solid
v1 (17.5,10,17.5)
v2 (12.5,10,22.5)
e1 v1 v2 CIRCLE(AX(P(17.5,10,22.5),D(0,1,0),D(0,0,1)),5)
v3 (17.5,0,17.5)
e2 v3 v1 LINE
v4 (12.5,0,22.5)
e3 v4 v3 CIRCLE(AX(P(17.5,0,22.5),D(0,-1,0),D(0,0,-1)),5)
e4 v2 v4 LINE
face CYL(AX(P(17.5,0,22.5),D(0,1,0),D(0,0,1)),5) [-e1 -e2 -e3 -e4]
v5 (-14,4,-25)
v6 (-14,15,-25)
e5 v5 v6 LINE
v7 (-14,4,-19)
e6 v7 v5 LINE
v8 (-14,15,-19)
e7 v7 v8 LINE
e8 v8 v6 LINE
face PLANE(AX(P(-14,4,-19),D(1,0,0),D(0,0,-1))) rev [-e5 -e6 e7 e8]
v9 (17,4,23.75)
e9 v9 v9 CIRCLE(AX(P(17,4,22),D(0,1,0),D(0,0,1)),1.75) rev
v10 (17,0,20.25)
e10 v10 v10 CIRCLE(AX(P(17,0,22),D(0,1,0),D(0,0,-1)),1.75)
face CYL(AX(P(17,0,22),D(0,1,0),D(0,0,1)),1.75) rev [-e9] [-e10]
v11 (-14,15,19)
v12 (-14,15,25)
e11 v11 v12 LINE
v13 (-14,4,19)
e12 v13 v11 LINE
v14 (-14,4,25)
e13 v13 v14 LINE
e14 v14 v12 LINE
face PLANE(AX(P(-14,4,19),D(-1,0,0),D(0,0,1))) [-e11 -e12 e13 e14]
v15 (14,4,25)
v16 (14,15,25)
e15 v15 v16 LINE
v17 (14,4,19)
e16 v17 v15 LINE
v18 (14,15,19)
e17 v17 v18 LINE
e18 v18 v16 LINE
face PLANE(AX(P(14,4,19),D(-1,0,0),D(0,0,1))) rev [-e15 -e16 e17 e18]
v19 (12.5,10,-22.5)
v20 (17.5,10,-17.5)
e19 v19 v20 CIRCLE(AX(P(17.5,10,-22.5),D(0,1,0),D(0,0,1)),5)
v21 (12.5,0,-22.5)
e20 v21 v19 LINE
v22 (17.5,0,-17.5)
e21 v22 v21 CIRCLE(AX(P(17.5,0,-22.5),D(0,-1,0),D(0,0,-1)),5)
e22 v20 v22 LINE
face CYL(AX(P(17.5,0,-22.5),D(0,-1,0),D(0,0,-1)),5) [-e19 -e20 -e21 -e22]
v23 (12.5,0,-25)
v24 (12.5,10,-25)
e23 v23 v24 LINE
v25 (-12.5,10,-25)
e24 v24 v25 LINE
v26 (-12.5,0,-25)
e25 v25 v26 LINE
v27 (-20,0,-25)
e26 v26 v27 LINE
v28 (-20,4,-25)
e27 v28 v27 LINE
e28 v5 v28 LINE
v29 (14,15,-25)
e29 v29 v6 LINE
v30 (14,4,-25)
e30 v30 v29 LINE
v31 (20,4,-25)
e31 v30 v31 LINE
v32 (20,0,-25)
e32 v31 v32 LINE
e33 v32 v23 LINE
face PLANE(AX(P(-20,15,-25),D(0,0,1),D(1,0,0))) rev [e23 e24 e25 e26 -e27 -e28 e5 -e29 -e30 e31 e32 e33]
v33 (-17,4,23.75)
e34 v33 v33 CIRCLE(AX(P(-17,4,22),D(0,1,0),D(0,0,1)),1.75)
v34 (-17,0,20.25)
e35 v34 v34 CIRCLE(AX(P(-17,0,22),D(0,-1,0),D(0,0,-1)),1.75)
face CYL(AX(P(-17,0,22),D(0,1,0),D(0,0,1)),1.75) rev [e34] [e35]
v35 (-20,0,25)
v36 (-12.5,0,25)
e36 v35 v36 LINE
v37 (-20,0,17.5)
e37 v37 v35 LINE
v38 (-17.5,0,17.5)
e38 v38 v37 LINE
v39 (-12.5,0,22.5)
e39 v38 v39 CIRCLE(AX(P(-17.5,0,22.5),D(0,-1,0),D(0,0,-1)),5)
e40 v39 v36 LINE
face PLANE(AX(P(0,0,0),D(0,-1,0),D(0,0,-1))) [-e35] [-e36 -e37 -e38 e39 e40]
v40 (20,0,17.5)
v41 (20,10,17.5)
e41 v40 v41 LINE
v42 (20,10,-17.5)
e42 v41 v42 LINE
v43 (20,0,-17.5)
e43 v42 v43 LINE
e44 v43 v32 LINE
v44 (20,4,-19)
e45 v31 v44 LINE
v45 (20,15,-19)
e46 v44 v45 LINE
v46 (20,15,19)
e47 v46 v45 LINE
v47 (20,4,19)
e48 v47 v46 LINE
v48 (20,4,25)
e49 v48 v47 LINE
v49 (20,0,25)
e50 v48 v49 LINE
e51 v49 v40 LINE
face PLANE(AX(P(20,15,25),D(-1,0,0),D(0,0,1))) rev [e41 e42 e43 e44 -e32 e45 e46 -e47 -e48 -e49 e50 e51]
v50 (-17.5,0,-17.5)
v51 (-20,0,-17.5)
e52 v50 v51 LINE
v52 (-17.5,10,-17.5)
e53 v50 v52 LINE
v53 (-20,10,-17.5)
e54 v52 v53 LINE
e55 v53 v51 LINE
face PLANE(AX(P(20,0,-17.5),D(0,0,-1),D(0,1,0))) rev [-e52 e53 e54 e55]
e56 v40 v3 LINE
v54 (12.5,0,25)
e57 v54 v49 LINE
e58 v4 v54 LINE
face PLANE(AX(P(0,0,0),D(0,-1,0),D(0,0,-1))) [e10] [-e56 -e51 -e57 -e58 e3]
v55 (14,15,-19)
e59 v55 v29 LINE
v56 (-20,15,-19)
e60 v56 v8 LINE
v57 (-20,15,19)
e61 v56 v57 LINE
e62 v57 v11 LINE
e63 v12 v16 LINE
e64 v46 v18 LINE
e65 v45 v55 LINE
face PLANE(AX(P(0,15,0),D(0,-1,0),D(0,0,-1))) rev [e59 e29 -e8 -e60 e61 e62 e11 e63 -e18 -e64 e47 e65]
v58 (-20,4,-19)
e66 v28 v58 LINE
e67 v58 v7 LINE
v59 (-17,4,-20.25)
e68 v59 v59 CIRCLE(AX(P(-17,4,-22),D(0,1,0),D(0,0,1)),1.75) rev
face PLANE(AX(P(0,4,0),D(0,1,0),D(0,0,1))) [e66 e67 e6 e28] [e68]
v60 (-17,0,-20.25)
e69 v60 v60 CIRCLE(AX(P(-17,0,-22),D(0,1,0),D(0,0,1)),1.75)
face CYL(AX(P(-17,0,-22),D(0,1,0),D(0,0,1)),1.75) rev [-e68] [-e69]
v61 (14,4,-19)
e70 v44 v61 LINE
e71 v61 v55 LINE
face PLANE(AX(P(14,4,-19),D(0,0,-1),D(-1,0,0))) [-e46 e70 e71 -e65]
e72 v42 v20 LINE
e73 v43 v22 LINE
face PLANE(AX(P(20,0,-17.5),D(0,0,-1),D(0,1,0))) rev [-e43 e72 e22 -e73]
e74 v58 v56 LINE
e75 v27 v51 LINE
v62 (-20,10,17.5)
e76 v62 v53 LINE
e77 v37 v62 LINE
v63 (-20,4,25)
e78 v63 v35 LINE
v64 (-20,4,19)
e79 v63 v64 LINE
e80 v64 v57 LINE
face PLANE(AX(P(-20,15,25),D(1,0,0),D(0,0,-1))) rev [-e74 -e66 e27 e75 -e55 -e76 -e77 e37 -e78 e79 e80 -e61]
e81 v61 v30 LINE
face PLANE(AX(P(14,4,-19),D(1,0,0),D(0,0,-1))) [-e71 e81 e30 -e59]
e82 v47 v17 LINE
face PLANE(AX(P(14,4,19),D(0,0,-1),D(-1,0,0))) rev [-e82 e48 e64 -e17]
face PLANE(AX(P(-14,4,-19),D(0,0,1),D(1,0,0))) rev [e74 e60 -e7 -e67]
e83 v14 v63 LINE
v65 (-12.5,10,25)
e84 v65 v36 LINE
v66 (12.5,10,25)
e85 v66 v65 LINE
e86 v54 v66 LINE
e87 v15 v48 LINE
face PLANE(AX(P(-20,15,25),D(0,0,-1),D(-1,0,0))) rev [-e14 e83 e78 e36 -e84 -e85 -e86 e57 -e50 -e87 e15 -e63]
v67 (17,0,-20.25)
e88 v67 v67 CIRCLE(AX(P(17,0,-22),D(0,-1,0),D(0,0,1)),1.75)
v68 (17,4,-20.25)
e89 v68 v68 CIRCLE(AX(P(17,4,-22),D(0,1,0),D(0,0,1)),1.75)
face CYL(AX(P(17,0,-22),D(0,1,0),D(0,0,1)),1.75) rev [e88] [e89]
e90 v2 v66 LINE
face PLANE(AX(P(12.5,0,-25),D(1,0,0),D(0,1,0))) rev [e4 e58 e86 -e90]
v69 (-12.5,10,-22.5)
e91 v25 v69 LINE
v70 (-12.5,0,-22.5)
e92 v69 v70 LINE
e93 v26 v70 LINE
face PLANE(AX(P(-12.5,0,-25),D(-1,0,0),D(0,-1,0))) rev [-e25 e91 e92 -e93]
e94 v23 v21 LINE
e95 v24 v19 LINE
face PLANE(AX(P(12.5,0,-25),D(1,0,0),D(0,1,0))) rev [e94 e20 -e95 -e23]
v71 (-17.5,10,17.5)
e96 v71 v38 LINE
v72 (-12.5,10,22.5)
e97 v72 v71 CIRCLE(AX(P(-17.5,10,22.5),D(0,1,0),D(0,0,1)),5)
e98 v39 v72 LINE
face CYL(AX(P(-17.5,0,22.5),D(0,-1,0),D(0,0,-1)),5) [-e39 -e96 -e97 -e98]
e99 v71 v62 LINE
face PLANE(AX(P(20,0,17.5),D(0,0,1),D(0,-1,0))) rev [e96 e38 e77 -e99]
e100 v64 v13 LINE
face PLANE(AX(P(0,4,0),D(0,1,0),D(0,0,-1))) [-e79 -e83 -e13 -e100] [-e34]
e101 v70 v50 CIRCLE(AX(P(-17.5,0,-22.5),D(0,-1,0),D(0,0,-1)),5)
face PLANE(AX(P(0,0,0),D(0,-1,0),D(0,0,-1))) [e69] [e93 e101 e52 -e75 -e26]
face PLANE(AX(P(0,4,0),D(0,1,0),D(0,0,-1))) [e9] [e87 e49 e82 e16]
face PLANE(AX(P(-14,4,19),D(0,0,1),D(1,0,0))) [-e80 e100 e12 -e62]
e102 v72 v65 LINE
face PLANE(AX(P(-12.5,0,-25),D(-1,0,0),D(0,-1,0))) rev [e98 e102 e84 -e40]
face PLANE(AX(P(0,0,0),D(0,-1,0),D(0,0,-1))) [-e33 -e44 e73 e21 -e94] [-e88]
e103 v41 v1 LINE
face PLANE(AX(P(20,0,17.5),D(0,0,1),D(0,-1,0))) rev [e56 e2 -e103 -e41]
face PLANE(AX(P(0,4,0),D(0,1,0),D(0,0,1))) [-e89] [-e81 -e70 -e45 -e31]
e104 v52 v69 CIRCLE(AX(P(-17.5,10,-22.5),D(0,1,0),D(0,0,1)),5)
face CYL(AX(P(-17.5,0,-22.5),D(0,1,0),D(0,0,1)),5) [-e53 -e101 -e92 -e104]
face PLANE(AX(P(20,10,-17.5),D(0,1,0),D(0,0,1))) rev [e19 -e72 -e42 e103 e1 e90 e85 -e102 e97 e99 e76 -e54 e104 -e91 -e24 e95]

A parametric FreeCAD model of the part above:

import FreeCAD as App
import Part
import Sketcher

V = App.Vector
Q = App.Units.Quantity


def edges_at(feature, points):
    """Names of the edges that pass closest to the given points."""
    edges = feature.Shape.Edges
    near = lambda p: min(range(len(edges)), key=lambda i: edges[i].distToShape(Part.Vertex(*p))[0])
    return sorted({f"Edge{near(p) + 1}" for p in points})


def add_polygon(sketch, points):
    """Adds a closed chain of lines whose ends are joined by coincident constraints."""
    first, n = sketch.GeometryCount, len(points)
    for a, b in zip(points, points[1:] + points[:1]):
        sketch.addGeometry(Part.LineSegment(App.Vector(*a, 0), App.Vector(*b, 0)), False)
    for i in range(n):
        sketch.addConstraint(Sketcher.Constraint("Coincident", first + i, 2, first + (i + 1) % n, 1))

doc = App.newDocument("Part")
params = doc.addObject("Spreadsheet::Sheet", "Params")
for row, (alias, value) in enumerate([
    ("sketch1_width", "40 mm"),
    ("sketch1_height", "50 mm"),
    ("pad1_length", "15 mm"),
    ("sketch2_diameter", "3.5 mm"),
    ("pocket1_length", "15 mm"),
    ("sketch3_diameter", "3.5 mm"),
    ("pocket2_length", "15 mm"),
    ("sketch4_width", "6 mm"),
    ("pocket3_length", "11 mm"),
    ("sketch5_width", "6 mm"),
    ("pocket4_length", "11 mm"),
    ("sketch6_width", "10 mm"),
    ("sketch6_height", "35 mm"),
    ("sketch7_width", "25 mm"),
    ("sketch7_height", "10 mm"),
    ("fillet_radius", "5 mm"),
], start=1):
    params.set(f"A{row}", alias)
    params.set(f"B{row}", "=" + value)
    params.setAlias(f"B{row}", alias)

body = doc.addObject("PartDesign::Body", "Body")

sketch1 = body.newObject("Sketcher::SketchObject", "Sketch")
sketch1.AttachmentSupport = (doc.getObject("XZ_Plane"), [""])
sketch1.MapMode = "FlatFace"
add_polygon(sketch1, [(-20, -25), (-20, 25), (20, 25), (20, -25)])
sketch1.addConstraint(Sketcher.Constraint("Vertical", 0))
sketch1.addConstraint(Sketcher.Constraint("Horizontal", 1))
sketch1.addConstraint(Sketcher.Constraint("Vertical", 2))
sketch1.addConstraint(Sketcher.Constraint("Horizontal", 3))
sketch1.addConstraint(Sketcher.Constraint("Symmetric", 0, 2, 2, 2, -1, 1))
sketch1.addConstraint(Sketcher.Constraint("DistanceX", 1, 1, 1, 2, Q("40 mm")))
sketch1.addConstraint(Sketcher.Constraint("DistanceY", 0, 1, 0, 2, Q("50 mm")))
sketch1.setExpression("Constraints[9]", "Params.sketch1_width")
sketch1.setExpression("Constraints[10]", "Params.sketch1_height")
pad1 = body.newObject("PartDesign::Pad", "Pad")
pad1.Profile = sketch1
pad1.setExpression("Length", "Params.pad1_length")
pad1.Reversed = True

sketch2 = body.newObject("Sketcher::SketchObject", "Sketch001")
sketch2.AttachmentSupport = (doc.getObject("XZ_Plane"), [""])
sketch2.MapMode = "FlatFace"
sketch2.AttachmentOffset = App.Placement(V(0, 0, -15), App.Rotation())
sketch2.addGeometry(Part.Circle(V(-17, -22, 0), V(0, 0, 1), 1.75), False)
sketch2.addConstraint(Sketcher.Constraint("Diameter", 0, Q("3.5 mm")))
sketch2.addConstraint(Sketcher.Constraint("DistanceX", 0, 3, -1, 1, Q("17 mm")))
sketch2.addConstraint(Sketcher.Constraint("DistanceY", 0, 3, -1, 1, Q("22 mm")))
sketch2.setExpression("Constraints[0]", "Params.sketch2_diameter")
pocket1 = body.newObject("PartDesign::Pocket", "Pocket")
pocket1.Profile = sketch2
pocket1.setExpression("Length", "Params.pocket1_length")
pocket1.Reversed = True
doc.recompute()

mirrored = body.newObject("PartDesign::Mirrored", "Mirrored")
mirrored.Originals = [pocket1]
mirrored.MirrorPlane = (doc.getObject("YZ_Plane"), [""])
body.Tip = mirrored
doc.recompute()

mirrored2 = body.newObject("PartDesign::Mirrored", "Mirrored001")
mirrored2.Originals = [pocket1]
mirrored2.MirrorPlane = (doc.getObject("XY_Plane"), [""])
body.Tip = mirrored2

sketch3 = body.newObject("Sketcher::SketchObject", "Sketch002")
sketch3.AttachmentSupport = (doc.getObject("XZ_Plane"), [""])
sketch3.MapMode = "FlatFace"
sketch3.AttachmentOffset = App.Placement(V(0, 0, -15), App.Rotation())
sketch3.addGeometry(Part.Circle(V(17, 22, 0), V(0, 0, 1), 1.75), False)
sketch3.addConstraint(Sketcher.Constraint("Diameter", 0, Q("3.5 mm")))
sketch3.addConstraint(Sketcher.Constraint("DistanceX", -1, 1, 0, 3, Q("17 mm")))
sketch3.addConstraint(Sketcher.Constraint("DistanceY", -1, 1, 0, 3, Q("22 mm")))
sketch3.setExpression("Constraints[0]", "Params.sketch3_diameter")
pocket2 = body.newObject("PartDesign::Pocket", "Pocket001")
pocket2.Profile = sketch3
pocket2.setExpression("Length", "Params.pocket2_length")
pocket2.Reversed = True

sketch4 = body.newObject("Sketcher::SketchObject", "Sketch003")
sketch4.AttachmentSupport = (doc.getObject("XZ_Plane"), [""])
sketch4.MapMode = "FlatFace"
sketch4.AttachmentOffset = App.Placement(V(0, 0, -15), App.Rotation())
add_polygon(sketch4, [(-20, -25), (-20, -19), (-14, -19), (-14, -25)])
sketch4.addConstraint(Sketcher.Constraint("Vertical", 0))
sketch4.addConstraint(Sketcher.Constraint("Horizontal", 1))
sketch4.addConstraint(Sketcher.Constraint("Vertical", 2))
sketch4.addConstraint(Sketcher.Constraint("Horizontal", 3))
sketch4.addConstraint(Sketcher.Constraint("Equal", 3, 0))
sketch4.addConstraint(Sketcher.Constraint("DistanceX", 1, 1, 1, 2, Q("6 mm")))
sketch4.addConstraint(Sketcher.Constraint("DistanceX", 0, 2, -1, 1, Q("20 mm")))
sketch4.addConstraint(Sketcher.Constraint("DistanceY", 0, 2, -1, 1, Q("19 mm")))
sketch4.setExpression("Constraints[9]", "Params.sketch4_width")
pocket3 = body.newObject("PartDesign::Pocket", "Pocket002")
pocket3.Profile = sketch4
pocket3.setExpression("Length", "Params.pocket3_length")
pocket3.Reversed = True
doc.recompute()

mirrored3 = body.newObject("PartDesign::Mirrored", "Mirrored002")
mirrored3.Originals = [pocket3]
mirrored3.MirrorPlane = (doc.getObject("YZ_Plane"), [""])
body.Tip = mirrored3
doc.recompute()

mirrored4 = body.newObject("PartDesign::Mirrored", "Mirrored003")
mirrored4.Originals = [pocket3]
mirrored4.MirrorPlane = (doc.getObject("XY_Plane"), [""])
body.Tip = mirrored4

sketch5 = body.newObject("Sketcher::SketchObject", "Sketch004")
sketch5.AttachmentSupport = (doc.getObject("XZ_Plane"), [""])
sketch5.MapMode = "FlatFace"
sketch5.AttachmentOffset = App.Placement(V(0, 0, -15), App.Rotation())
add_polygon(sketch5, [(20, 25), (20, 19), (14, 19), (14, 25)])
sketch5.addConstraint(Sketcher.Constraint("Vertical", 0))
sketch5.addConstraint(Sketcher.Constraint("Horizontal", 1))
sketch5.addConstraint(Sketcher.Constraint("Vertical", 2))
sketch5.addConstraint(Sketcher.Constraint("Horizontal", 3))
sketch5.addConstraint(Sketcher.Constraint("Equal", 3, 0))
sketch5.addConstraint(Sketcher.Constraint("DistanceX", 1, 2, 1, 1, Q("6 mm")))
sketch5.addConstraint(Sketcher.Constraint("DistanceX", -1, 1, 0, 2, Q("20 mm")))
sketch5.addConstraint(Sketcher.Constraint("DistanceY", -1, 1, 0, 2, Q("19 mm")))
sketch5.setExpression("Constraints[9]", "Params.sketch5_width")
pocket4 = body.newObject("PartDesign::Pocket", "Pocket003")
pocket4.Profile = sketch5
pocket4.setExpression("Length", "Params.pocket4_length")
pocket4.Reversed = True

sketch6 = body.newObject("Sketcher::SketchObject", "Sketch005")
sketch6.AttachmentSupport = (doc.getObject("YZ_Plane"), [""])
sketch6.MapMode = "FlatFace"
sketch6.AttachmentOffset = App.Placement(V(0, 0, -20), App.Rotation())
add_polygon(sketch6, [(10, -17.5), (0, -17.5), (0, 17.5), (10, 17.5)])
sketch6.addConstraint(Sketcher.Constraint("Horizontal", 0))
sketch6.addConstraint(Sketcher.Constraint("Vertical", 1))
sketch6.addConstraint(Sketcher.Constraint("Horizontal", 2))
sketch6.addConstraint(Sketcher.Constraint("Vertical", 3))
sketch6.addConstraint(Sketcher.Constraint("Symmetric", 0, 2, 1, 2, -1, 1))
sketch6.addConstraint(Sketcher.Constraint("DistanceX", 0, 2, 0, 1, Q("10 mm")))
sketch6.addConstraint(Sketcher.Constraint("DistanceY", 1, 1, 1, 2, Q("35 mm")))
sketch6.setExpression("Constraints[9]", "Params.sketch6_width")
sketch6.setExpression("Constraints[10]", "Params.sketch6_height")
pocket5 = body.newObject("PartDesign::Pocket", "Pocket004")
pocket5.Profile = sketch6
pocket5.Type = "ThroughAll"
pocket5.Reversed = True

sketch7 = body.newObject("Sketcher::SketchObject", "Sketch006")
sketch7.AttachmentSupport = (doc.getObject("XY_Plane"), [""])
sketch7.MapMode = "FlatFace"
sketch7.AttachmentOffset = App.Placement(V(0, 0, 25), App.Rotation())
add_polygon(sketch7, [(-12.5, 10), (-12.5, 0), (12.5, 0), (12.5, 10)])
sketch7.addConstraint(Sketcher.Constraint("Vertical", 0))
sketch7.addConstraint(Sketcher.Constraint("Horizontal", 1))
sketch7.addConstraint(Sketcher.Constraint("Vertical", 2))
sketch7.addConstraint(Sketcher.Constraint("Horizontal", 3))
sketch7.addConstraint(Sketcher.Constraint("Symmetric", 0, 2, 1, 2, -1, 1))
sketch7.addConstraint(Sketcher.Constraint("DistanceX", 1, 1, 1, 2, Q("25 mm")))
sketch7.addConstraint(Sketcher.Constraint("DistanceY", 0, 2, 0, 1, Q("10 mm")))
sketch7.setExpression("Constraints[9]", "Params.sketch7_width")
sketch7.setExpression("Constraints[10]", "Params.sketch7_height")
pocket6 = body.newObject("PartDesign::Pocket", "Pocket005")
pocket6.Profile = sketch7
pocket6.Type = "ThroughAll"
doc.recompute()

fillet = body.newObject("PartDesign::Fillet", "Fillet")
fillet.Base = (pocket6, edges_at(pocket6, [
    (12.5, 5, 17.5),
    (-12.5, 5, 17.5),
    (-12.5, 5, -17.5),
    (12.5, 5, -17.5),
]))
fillet.setExpression("Radius", "Params.fillet_radius")

doc.recompute()
